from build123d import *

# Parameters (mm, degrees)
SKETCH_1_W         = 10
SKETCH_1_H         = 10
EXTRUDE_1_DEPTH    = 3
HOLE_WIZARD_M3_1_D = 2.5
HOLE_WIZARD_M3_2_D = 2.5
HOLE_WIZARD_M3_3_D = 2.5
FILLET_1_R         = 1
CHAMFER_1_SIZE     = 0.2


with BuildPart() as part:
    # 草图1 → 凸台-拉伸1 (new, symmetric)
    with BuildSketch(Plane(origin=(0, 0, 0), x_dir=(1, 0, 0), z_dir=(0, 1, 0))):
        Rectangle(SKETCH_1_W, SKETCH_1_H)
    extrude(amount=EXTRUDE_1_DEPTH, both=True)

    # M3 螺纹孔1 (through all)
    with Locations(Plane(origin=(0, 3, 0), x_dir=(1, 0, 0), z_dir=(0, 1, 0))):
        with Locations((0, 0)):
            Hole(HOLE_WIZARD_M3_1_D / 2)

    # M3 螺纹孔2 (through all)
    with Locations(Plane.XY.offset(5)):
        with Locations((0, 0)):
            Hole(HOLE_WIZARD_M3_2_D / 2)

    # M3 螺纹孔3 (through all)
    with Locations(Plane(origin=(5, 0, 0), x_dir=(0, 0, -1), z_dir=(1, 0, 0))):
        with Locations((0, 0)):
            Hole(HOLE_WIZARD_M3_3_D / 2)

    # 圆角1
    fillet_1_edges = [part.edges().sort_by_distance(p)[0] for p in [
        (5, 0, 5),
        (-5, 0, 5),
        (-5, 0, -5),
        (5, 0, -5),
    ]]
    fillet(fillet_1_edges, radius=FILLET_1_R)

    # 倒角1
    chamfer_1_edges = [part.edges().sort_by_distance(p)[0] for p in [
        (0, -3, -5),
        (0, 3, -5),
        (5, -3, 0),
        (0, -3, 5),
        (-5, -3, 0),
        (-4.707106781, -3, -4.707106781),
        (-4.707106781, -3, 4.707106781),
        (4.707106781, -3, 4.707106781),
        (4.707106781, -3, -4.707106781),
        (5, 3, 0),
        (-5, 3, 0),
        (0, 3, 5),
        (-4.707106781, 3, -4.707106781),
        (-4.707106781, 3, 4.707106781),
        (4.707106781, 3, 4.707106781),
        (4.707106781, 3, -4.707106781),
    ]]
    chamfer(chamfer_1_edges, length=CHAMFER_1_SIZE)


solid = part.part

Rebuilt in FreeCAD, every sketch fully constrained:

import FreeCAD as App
import Part
import Sketcher
Q = App.Units.Quantity


def edges_at(feature, points):
    """Names of the edges that pass closest to the given points."""
    edges = feature.Shape.Edges
    near = lambda p: min(range(len(edges)), key=lambda i: edges[i].distToShape(Part.Vertex(*p))[0])
    return sorted({f"Edge{near(p) + 1}" for p in points})

doc = App.newDocument("Part")
params = doc.addObject("Spreadsheet::Sheet", "Params")
for row, (alias, value) in enumerate([
    ("sketch1_width", "10 mm"),
    ("pad1_length", "6 mm"),
    ("sketch2_diameter", "2.5 mm"),
    ("hole_diameter", "2.5 mm"),
    ("sketch3_diameter", "2.5 mm"),
    ("hole2_diameter", "2.5 mm"),
    ("sketch4_diameter", "2.5 mm"),
    ("hole3_diameter", "2.5 mm"),
    ("fillet_radius", "1 mm"),
    ("chamfer_size", "0.2 mm"),
], start=1):
    params.set(f"A{row}", alias)
    params.set(f"B{row}", "=" + value)
    params.setAlias(f"B{row}", alias)

body = doc.addObject("PartDesign::Body", "Body")

# Sketch on XZ plane
sketch1 = doc.addObject("Sketcher::SketchObject", "Sketch")
body.addObject(sketch1)
sketch1.AttachmentSupport = (doc.XZ_Plane, [""])
sketch1.MapMode = "FlatFace"
sketch1.addGeometry(Part.LineSegment(App.Vector(-5, -5, 0), App.Vector(-5, 5, 0)), False)
sketch1.addGeometry(Part.LineSegment(App.Vector(-5, 5, 0), App.Vector(5, 5, 0)), False)
sketch1.addGeometry(Part.LineSegment(App.Vector(5, 5, 0), App.Vector(5, -5, 0)), False)
sketch1.addGeometry(Part.LineSegment(App.Vector(5, -5, 0), App.Vector(-5, -5, 0)), False)
sketch1.addConstraint(Sketcher.Constraint("Coincident", 0, 2, 1, 1))
sketch1.addConstraint(Sketcher.Constraint("Coincident", 1, 2, 2, 1))
sketch1.addConstraint(Sketcher.Constraint("Coincident", 2, 2, 3, 1))
sketch1.addConstraint(Sketcher.Constraint("Coincident", 3, 2, 0, 1))
sketch1.addConstraint(Sketcher.Constraint("Vertical", 0))
sketch1.addConstraint(Sketcher.Constraint("Horizontal", 1))
sketch1.addConstraint(Sketcher.Constraint("Vertical", 2))
sketch1.addConstraint(Sketcher.Constraint("Horizontal", 3))
sketch1.addConstraint(Sketcher.Constraint("Symmetric", 0, 2, 2, 2, -1, 1))
sketch1.addConstraint(Sketcher.Constraint("Equal", 3, 0))
sketch1.addConstraint(Sketcher.Constraint("DistanceX", 1, 1, 1, 2, Q("10 mm")))
sketch1.setExpression("Constraints[10]", "Params.sketch1_width")
pad1 = doc.addObject("PartDesign::Pad", "Pad")
body.addObject(pad1)
pad1.Profile = sketch1
pad1.setExpression("Length", "Params.pad1_length")
pad1.Midplane = True

# Sketch on XZ plane
sketch2 = doc.addObject("Sketcher::SketchObject", "Sketch001")
body.addObject(sketch2)
sketch2.AttachmentSupport = (doc.XZ_Plane, [""])
sketch2.MapMode = "FlatFace"
sketch2.AttachmentOffset = App.Placement(App.Vector(0, 0, -3), App.Rotation())
sketch2.addGeometry(Part.Circle(App.Vector(0, 0, 0), App.Vector(0, 0, 1), 1.25), False)
sketch2.addConstraint(Sketcher.Constraint("Coincident", 0, 3, -1, 1))
sketch2.addConstraint(Sketcher.Constraint("Diameter", 0, Q("2.5 mm")))
sketch2.setExpression("Constraints[1]", "Params.sketch2_diameter")
doc.recompute()
hole = doc.addObject("PartDesign::Hole", "Hole")
body.addObject(hole)
hole.Profile = sketch2
hole.ThreadType = "None"
hole.setExpression("Diameter", "Params.hole_diameter")
hole.DepthType = "ThroughAll"
hole.Reversed = True

# Sketch on XY plane
sketch3 = doc.addObject("Sketcher::SketchObject", "Sketch002")
body.addObject(sketch3)
sketch3.AttachmentSupport = (doc.XY_Plane, [""])
sketch3.MapMode = "FlatFace"
sketch3.AttachmentOffset = App.Placement(App.Vector(0, 0, 5), App.Rotation())
sketch3.addGeometry(Part.Circle(App.Vector(0, 0, 0), App.Vector(0, 0, 1), 1.25), False)
sketch3.addConstraint(Sketcher.Constraint("Coincident", 0, 3, -1, 1))
sketch3.addConstraint(Sketcher.Constraint("Diameter", 0, Q("2.5 mm")))
sketch3.setExpression("Constraints[1]", "Params.sketch3_diameter")
doc.recompute()
hole2 = doc.addObject("PartDesign::Hole", "Hole001")
body.addObject(hole2)
hole2.Profile = sketch3
hole2.ThreadType = "None"
hole2.setExpression("Diameter", "Params.hole2_diameter")
hole2.DepthType = "ThroughAll"

# Sketch on YZ plane
sketch4 = doc.addObject("Sketcher::SketchObject", "Sketch003")
body.addObject(sketch4)
sketch4.AttachmentSupport = (doc.YZ_Plane, [""])
sketch4.MapMode = "FlatFace"
sketch4.AttachmentOffset = App.Placement(App.Vector(0, 0, 5), App.Rotation())
sketch4.addGeometry(Part.Circle(App.Vector(0, 0, 0), App.Vector(0, 0, 1), 1.25), False)
sketch4.addConstraint(Sketcher.Constraint("Coincident", 0, 3, -1, 1))
sketch4.addConstraint(Sketcher.Constraint("Diameter", 0, Q("2.5 mm")))
sketch4.setExpression("Constraints[1]", "Params.sketch4_diameter")
doc.recompute()
hole3 = doc.addObject("PartDesign::Hole", "Hole002")
body.addObject(hole3)
hole3.Profile = sketch4
hole3.ThreadType = "None"
hole3.setExpression("Diameter", "Params.hole3_diameter")
hole3.DepthType = "ThroughAll"
doc.recompute()

fillet = doc.addObject("PartDesign::Fillet", "Fillet")
body.addObject(fillet)
fillet.Base = (hole3, edges_at(hole3, [
    (5, 0, 5),
    (-5, 0, 5),
    (-5, 0, -5),
    (5, 0, -5),
]))
fillet.setExpression("Radius", "Params.fillet_radius")
doc.recompute()

chamfer = doc.addObject("PartDesign::Chamfer", "Chamfer")
body.addObject(chamfer)
chamfer.Base = (fillet, edges_at(fillet, [
    (0, -3, -5),
    (0, 3, -5),
    (5, -3, 0),
    (0, -3, 5),
    (-5, -3, 0),
    (-4.707, -3, -4.707),
    (-4.707, -3, 4.707),
    (4.707, -3, 4.707),
    (4.707, -3, -4.707),
    (5, 3, 0),
    (-5, 3, 0),
    (0, 3, 5),
    (-4.707, 3, -4.707),
    (-4.707, 3, 4.707),
    (4.707, 3, 4.707),
    (4.707, 3, -4.707),
]))
chamfer.setExpression("Size", "Params.chamfer_size")

doc.recompute()
